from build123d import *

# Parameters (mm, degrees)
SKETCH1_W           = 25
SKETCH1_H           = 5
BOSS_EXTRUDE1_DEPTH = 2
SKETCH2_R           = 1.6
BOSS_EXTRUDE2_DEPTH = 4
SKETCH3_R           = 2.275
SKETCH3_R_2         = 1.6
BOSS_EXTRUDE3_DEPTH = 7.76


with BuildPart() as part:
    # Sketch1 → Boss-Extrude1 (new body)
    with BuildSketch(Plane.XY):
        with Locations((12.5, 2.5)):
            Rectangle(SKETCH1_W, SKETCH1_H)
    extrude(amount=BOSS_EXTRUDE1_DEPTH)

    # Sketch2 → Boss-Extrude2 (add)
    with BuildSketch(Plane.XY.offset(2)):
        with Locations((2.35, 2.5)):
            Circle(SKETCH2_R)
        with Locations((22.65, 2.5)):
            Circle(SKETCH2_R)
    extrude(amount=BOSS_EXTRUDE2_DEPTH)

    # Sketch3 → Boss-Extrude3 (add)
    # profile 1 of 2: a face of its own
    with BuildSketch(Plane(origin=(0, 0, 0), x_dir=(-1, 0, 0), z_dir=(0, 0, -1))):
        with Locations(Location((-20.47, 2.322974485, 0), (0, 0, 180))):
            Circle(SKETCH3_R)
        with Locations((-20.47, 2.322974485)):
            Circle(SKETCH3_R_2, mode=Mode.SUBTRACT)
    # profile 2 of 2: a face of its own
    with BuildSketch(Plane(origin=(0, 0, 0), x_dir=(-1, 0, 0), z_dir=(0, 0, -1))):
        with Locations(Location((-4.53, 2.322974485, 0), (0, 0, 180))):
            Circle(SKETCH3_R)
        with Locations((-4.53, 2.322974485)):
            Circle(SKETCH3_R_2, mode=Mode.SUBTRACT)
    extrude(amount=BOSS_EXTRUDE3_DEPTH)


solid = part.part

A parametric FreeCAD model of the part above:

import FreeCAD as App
import Part
import Sketcher

V = App.Vector
Q = App.Units.Quantity


def add_polygon(sketch, points):
    """Adds a closed chain of lines whose ends are joined by coincident constraints."""
    first, n = sketch.GeometryCount, len(points)
    for a, b in zip(points, points[1:] + points[:1]):
        sketch.addGeometry(Part.LineSegment(App.Vector(*a, 0), App.Vector(*b, 0)), False)
    for i in range(n):
        sketch.addConstraint(Sketcher.Constraint("Coincident", first + i, 2, first + (i + 1) % n, 1))

doc = App.newDocument("Part")
body = doc.addObject("PartDesign::Body", "Body")

# Sketch on XY plane
sketch1 = body.newObject("Sketcher::SketchObject", "Sketch")
sketch1.AttachmentSupport = (doc.getObject("XY_Plane"), [""])
sketch1.MapMode = "FlatFace"
add_polygon(sketch1, [(0, 5), (0, 0), (25, 0), (25, 5)])  # lines 0-3
sketch1.addConstraint(Sketcher.Constraint("Vertical", 0))
sketch1.addConstraint(Sketcher.Constraint("Horizontal", 1))
sketch1.addConstraint(Sketcher.Constraint("Vertical", 2))
sketch1.addConstraint(Sketcher.Constraint("Horizontal", 3))
sketch1.addConstraint(Sketcher.Constraint("Coincident", 0, 2, -1, 1))
sketch1.addConstraint(Sketcher.Constraint("DistanceX", 1, 1, 1, 2, Q("25 mm")))
sketch1.addConstraint(Sketcher.Constraint("DistanceY", 0, 2, 0, 1, Q("5 mm")))
pad1 = body.newObject("PartDesign::Pad", "Pad")
pad1.Profile = sketch1
pad1.Length = 2

# Sketch on XY plane
sketch2 = body.newObject("Sketcher::SketchObject", "Sketch001")
sketch2.AttachmentSupport = (doc.getObject("XY_Plane"), [""])
sketch2.MapMode = "FlatFace"
sketch2.AttachmentOffset = App.Placement(V(0, 0, 2), App.Rotation())
sketch2.addGeometry(Part.Circle(V(2.4, 2.5, 0), V(0, 0, 1), 1.6), False)
sketch2.addGeometry(Part.Circle(V(22.6, 2.5, 0), V(0, 0, 1), 1.6), False)
sketch2.addConstraint(Sketcher.Constraint("Equal", 0, 1))
sketch2.addConstraint(Sketcher.Constraint("Horizontal", 0, 3, 1, 3))
sketch2.addConstraint(Sketcher.Constraint("Diameter", 0, Q("3.2 mm")))
sketch2.addConstraint(Sketcher.Constraint("DistanceY", -1, 1, 0, 3, Q("2.5 mm")))
sketch2.addConstraint(Sketcher.Constraint("DistanceX", 0, 3, 1, 3, Q("20.3 mm")))
sketch2.addConstraint(Sketcher.Constraint("DistanceX", -1, 1, 0, 3, Q("2.35 mm")))
pad2 = body.newObject("PartDesign::Pad", "Pad001")
pad2.Profile = sketch2
pad2.Length = 4

# Sketch on XY plane
sketch3 = body.newObject("Sketcher::SketchObject", "Sketch002")
sketch3.AttachmentSupport = (doc.getObject("XY_Plane"), [""])
sketch3.MapMode = "FlatFace"
sketch3.addGeometry(Part.Circle(V(20.5, 2.3, 0), V(0, 0, 1), 2.3), False)
sketch3.addGeometry(Part.Circle(V(20.5, 2.3, 0), V(0, 0, 1), 1.6), False)
sketch3.addGeometry(Part.Circle(V(4.5, 2.3, 0), V(0, 0, 1), 2.3), False)
sketch3.addGeometry(Part.Circle(V(4.5, 2.3, 0), V(0, 0, 1), 1.6), False)
sketch3.addConstraint(Sketcher.Constraint("Coincident", 1, 3, 0, 3))
sketch3.addConstraint(Sketcher.Constraint("Coincident", 3, 3, 2, 3))
sketch3.addConstraint(Sketcher.Constraint("Equal", 0, 2))
sketch3.addConstraint(Sketcher.Constraint("Equal", 1, 3))
sketch3.addConstraint(Sketcher.Constraint("Horizontal", 1, 3, 2, 3))
sketch3.addConstraint(Sketcher.Constraint("Diameter", 1, Q("3.2 mm")))
sketch3.addConstraint(Sketcher.Constraint("Diameter", 0, Q("4.55 mm")))
sketch3.addConstraint(Sketcher.Constraint("DistanceX", -1, 1, 0, 3, Q("20.47 mm")))
sketch3.addConstraint(Sketcher.Constraint("DistanceX", -1, 1, 2, 3, Q("4.53 mm")))
sketch3.addConstraint(Sketcher.Constraint("DistanceY", -1, 1, 0, 3, Q("2.322974 mm")))
pad3 = body.newObject("PartDesign::Pad", "Pad002")
pad3.Profile = sketch3
pad3.Length = 7.76
pad3.Reversed = True

doc.recompute()
